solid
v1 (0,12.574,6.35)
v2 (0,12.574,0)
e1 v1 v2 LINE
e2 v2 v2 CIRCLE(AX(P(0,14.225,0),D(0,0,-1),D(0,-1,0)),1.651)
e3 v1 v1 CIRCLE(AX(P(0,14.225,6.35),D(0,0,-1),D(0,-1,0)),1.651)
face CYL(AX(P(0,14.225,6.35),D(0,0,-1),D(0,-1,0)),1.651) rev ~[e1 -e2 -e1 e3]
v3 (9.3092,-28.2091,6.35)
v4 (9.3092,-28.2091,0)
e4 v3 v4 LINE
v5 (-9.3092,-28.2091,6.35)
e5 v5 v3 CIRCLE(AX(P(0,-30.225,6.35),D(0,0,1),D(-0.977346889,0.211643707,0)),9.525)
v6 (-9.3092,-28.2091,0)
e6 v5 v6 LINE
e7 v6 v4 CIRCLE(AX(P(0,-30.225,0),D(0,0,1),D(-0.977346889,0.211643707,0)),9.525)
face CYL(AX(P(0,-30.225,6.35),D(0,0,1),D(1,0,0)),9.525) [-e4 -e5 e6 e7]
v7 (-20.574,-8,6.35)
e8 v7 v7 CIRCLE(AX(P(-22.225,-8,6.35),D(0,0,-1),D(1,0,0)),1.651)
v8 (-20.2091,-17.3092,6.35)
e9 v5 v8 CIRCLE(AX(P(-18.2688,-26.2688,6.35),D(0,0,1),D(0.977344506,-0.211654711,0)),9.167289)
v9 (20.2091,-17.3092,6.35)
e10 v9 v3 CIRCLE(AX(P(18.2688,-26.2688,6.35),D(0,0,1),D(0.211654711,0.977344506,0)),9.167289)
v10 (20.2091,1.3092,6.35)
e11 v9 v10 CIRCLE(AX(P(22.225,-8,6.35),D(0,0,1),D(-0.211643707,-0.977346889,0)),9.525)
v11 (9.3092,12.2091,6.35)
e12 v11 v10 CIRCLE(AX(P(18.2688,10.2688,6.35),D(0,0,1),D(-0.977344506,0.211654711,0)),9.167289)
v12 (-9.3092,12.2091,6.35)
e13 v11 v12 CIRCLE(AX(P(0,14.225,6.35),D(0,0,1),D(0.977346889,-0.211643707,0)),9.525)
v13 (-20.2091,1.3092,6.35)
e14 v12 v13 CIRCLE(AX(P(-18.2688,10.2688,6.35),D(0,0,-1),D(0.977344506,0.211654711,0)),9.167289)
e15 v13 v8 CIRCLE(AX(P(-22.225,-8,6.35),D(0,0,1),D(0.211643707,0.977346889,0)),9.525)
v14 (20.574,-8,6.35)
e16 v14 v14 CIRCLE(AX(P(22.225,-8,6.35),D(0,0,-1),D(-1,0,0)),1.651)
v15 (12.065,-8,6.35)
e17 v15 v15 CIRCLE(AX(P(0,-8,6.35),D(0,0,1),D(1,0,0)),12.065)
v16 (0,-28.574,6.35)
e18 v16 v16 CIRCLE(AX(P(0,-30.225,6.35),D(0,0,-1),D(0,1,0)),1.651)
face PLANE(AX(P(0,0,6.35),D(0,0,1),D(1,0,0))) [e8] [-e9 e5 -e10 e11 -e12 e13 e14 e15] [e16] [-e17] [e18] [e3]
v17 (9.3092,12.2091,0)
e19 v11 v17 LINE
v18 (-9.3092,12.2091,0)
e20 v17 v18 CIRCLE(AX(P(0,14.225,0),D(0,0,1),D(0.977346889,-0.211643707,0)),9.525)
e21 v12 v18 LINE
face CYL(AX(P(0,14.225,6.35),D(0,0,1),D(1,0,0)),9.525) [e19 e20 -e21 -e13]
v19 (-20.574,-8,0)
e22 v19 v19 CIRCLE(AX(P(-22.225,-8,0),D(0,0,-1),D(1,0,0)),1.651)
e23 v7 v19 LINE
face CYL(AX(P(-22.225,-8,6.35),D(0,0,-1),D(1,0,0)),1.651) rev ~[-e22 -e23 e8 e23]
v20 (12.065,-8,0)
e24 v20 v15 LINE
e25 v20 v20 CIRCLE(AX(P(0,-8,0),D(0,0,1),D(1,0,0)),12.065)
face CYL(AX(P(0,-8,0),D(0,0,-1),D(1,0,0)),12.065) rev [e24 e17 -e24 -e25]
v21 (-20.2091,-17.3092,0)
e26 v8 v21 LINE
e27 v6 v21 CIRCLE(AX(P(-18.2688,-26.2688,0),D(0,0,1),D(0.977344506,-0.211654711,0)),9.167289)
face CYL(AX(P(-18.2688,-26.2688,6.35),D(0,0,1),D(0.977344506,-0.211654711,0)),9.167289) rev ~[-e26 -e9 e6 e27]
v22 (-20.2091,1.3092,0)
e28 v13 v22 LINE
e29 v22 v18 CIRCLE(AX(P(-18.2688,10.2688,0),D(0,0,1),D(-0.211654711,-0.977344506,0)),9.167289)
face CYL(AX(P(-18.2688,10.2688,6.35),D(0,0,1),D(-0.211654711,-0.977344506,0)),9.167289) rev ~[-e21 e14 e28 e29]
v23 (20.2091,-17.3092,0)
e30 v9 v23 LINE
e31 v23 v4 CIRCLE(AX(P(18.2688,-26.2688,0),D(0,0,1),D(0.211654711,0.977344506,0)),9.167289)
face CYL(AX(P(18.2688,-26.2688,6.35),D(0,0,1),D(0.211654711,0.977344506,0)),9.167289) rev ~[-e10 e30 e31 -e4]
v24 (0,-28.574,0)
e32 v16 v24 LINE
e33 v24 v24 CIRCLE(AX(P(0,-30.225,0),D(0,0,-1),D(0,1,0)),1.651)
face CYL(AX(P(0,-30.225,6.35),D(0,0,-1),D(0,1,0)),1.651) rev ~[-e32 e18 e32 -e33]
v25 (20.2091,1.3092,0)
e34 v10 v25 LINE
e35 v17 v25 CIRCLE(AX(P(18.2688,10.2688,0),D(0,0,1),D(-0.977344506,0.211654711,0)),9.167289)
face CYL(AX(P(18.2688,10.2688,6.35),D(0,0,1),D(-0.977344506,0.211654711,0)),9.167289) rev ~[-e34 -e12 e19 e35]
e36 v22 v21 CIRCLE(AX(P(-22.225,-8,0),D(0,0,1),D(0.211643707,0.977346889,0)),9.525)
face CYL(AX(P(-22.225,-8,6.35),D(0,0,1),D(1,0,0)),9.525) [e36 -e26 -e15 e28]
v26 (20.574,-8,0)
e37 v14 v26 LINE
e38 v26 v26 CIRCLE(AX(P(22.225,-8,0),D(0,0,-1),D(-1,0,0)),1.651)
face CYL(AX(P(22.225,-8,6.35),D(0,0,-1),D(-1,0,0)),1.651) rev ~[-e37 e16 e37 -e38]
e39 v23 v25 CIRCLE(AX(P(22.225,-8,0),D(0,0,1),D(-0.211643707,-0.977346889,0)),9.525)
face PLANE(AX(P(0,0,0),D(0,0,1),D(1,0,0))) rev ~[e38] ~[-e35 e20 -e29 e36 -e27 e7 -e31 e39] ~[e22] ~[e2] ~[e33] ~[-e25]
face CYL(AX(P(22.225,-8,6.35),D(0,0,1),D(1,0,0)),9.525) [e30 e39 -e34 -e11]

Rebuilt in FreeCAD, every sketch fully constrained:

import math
import FreeCAD as App
import Part
import Sketcher
Q = App.Units.Quantity

doc = App.newDocument("Part")
body = doc.addObject("PartDesign::Body", "Body")

sketch1 = body.newObject("Sketcher::SketchObject", "Sketch")
sketch1.AttachmentSupport = (doc.getObject("XY_Plane"), [""])
sketch1.MapMode = "FlatFace"
sketch1.addGeometry([
    Part.Circle(App.Vector(0, -8, 0), App.Vector(0, 0, 1), 31.8),
    Part.Circle(App.Vector(22.2, -8, 0), App.Vector(0, 0, 1), 1.3),
    Part.Circle(App.Vector(0, -8, 0), App.Vector(0, 0, 1), 12.1),
    Part.Circle(App.Vector(0, -30.2, 0), App.Vector(0, 0, 1), 1.3),
    Part.Circle(App.Vector(-22.2, -8, 0), App.Vector(0, 0, 1), 1.3),
    Part.Circle(App.Vector(0, 14.2, 0), App.Vector(0, 0, 1), 1.3),
], False)
sketch1.addConstraint([
    Sketcher.Constraint("Coincident", 2, 3, 0, 3),
    Sketcher.Constraint("Equal", 1, 3),
    Sketcher.Constraint("Equal", 3, 4),
    Sketcher.Constraint("Equal", 4, 5),
    Sketcher.Constraint("Symmetric", 1, 3, 4, 3, -2),
    Sketcher.Constraint("PointOnObject", 0, 3, -2),
    Sketcher.Constraint("PointOnObject", 3, 3, -2),
    Sketcher.Constraint("PointOnObject", 5, 3, -2),
    Sketcher.Constraint("Horizontal", 0, 3, 1, 3),
    Sketcher.Constraint("Diameter", 0, Q("2.5 in")),
    Sketcher.Constraint("Diameter", 1, Q("0.1 in")),
    Sketcher.Constraint("Diameter", 2, Q("0.95 in")),
    Sketcher.Constraint("DistanceX", 4, 3, 1, 3, Q("1.75 in")),
    Sketcher.Constraint("DistanceY", 3, 3, 5, 3, Q("1.75 in")),
    Sketcher.Constraint("DistanceY", 3, 3, 0, 3, Q("0.875 in")),
    Sketcher.Constraint("DistanceY", 0, 3, -1, 1, 8.0),
])
pad1 = body.newObject("PartDesign::Pad", "Pad")
pad1.Profile = sketch1
pad1.Length = Q("0.25 in")

sketch2 = body.newObject("Sketcher::SketchObject", "Sketch001")
sketch2.AttachmentSupport = (doc.getObject("XY_Plane"), [""])
sketch2.MapMode = "FlatFace"
sketch2.AttachmentOffset = App.Placement(App.Vector(0, 0, 0.25 * 25.4), App.Rotation())
sketch2.addGeometry(Part.Circle(App.Vector(0, 14.2, 0), App.Vector(0, 0, 1), 1.7), False)
sketch2.addConstraint([
    Sketcher.Constraint("PointOnObject", 0, 3, -2),
    Sketcher.Constraint("Diameter", 0, Q("0.13 in")),
    Sketcher.Constraint("DistanceY", -1, 1, 0, 3, 14.225),
])
doc.recompute()
hole = body.newObject("PartDesign::Hole", "Hole")
hole.Profile = sketch2
hole.ThreadType = "None"
hole.Diameter = Q("0.13 in")
hole.DepthType = "Dimension"
hole.Depth = Q("0.25 in")
hole.DrillPoint = "Flat"
doc.recompute()

datumline = body.newObject("PartDesign::Line", "DatumLine")
datumline.Placement = App.Placement(App.Vector(0, -8, 0), App.Rotation(App.Vector(0, 0, 1), App.Vector(0, 0, 1)))
polarpattern = body.newObject("PartDesign::PolarPattern", "PolarPattern")
polarpattern.Originals = [hole]
polarpattern.Axis = (datumline, [""])
polarpattern.Angle = 360
polarpattern.Occurrences = 4
body.Tip = polarpattern

sketch3 = body.newObject("Sketcher::SketchObject", "Sketch002")
sketch3.AttachmentSupport = (doc.getObject("XY_Plane"), [""])
sketch3.MapMode = "FlatFace"
sketch3.AttachmentOffset = App.Placement(App.Vector(0, 0, 0.25 * 25.4), App.Rotation())
sketch3.addGeometry([
    Part.ArcOfCircle(Part.Circle(App.Vector(-22, -8, 0), App.Vector(0, 0, 1), 10), math.radians(78), math.radians(180)),
    Part.ArcOfCircle(Part.Circle(App.Vector(-18, 10, 0), App.Vector(0, 0, 1), 9), math.radians(-102), math.radians(12)),
    Part.ArcOfCircle(Part.Circle(App.Vector(0, 14, 0), App.Vector(0, 0, 1), 10), math.radians(90), math.radians(192)),
    Part.ArcOfCircle(Part.Circle(App.Vector(0, -8, 0), App.Vector(0, 0, 1), 32), math.radians(90), math.radians(180)),
    Part.ArcOfCircle(Part.Circle(App.Vector(-18, -26, 0), App.Vector(0, 0, 1), 9), math.radians(-12), math.radians(102)),
    Part.ArcOfCircle(Part.Circle(App.Vector(-22, -8, 0), App.Vector(0, 0, 1), 10), math.radians(-180), math.radians(-78)),
    Part.ArcOfCircle(Part.Circle(App.Vector(0, -8, 0), App.Vector(0, 0, 1), 32), math.radians(-180), math.radians(-90)),
    Part.ArcOfCircle(Part.Circle(App.Vector(0, -30, 0), App.Vector(0, 0, 1), 10), math.radians(168), math.radians(270)),
    Part.ArcOfCircle(Part.Circle(App.Vector(0, -8, 0), App.Vector(0, 0, 1), 32), math.radians(0), math.radians(90)),
    Part.ArcOfCircle(Part.Circle(App.Vector(0, 14, 0), App.Vector(0, 0, 1), 10), math.radians(-12), math.radians(90)),
    Part.ArcOfCircle(Part.Circle(App.Vector(18, 10, 0), App.Vector(0, 0, 1), 9), math.radians(168), math.radians(282)),
    Part.ArcOfCircle(Part.Circle(App.Vector(22, -8, 0), App.Vector(0, 0, 1), 10), math.radians(0), math.radians(102)),
    Part.ArcOfCircle(Part.Circle(App.Vector(0, -30, 0), App.Vector(0, 0, 1), 10), math.radians(-90), math.radians(12)),
    Part.ArcOfCircle(Part.Circle(App.Vector(0, -8, 0), App.Vector(0, 0, 1), 32), math.radians(-90), math.radians(0)),
    Part.ArcOfCircle(Part.Circle(App.Vector(22, -8, 0), App.Vector(0, 0, 1), 10), math.radians(-102), math.radians(0)),
    Part.ArcOfCircle(Part.Circle(App.Vector(18, -26, 0), App.Vector(0, 0, 1), 9), math.radians(78), math.radians(192)),
], False)
sketch3.addConstraint([
    Sketcher.Constraint("Tangent", 0, 1, 1, 1),
    Sketcher.Constraint("Tangent", 1, 2, 2, 2),
    Sketcher.Constraint("Tangent", 2, 1, 3, 1),
    Sketcher.Constraint("Tangent", 3, 2, 0, 2),
    Sketcher.Constraint("Tangent", 4, 2, 5, 2),
    Sketcher.Constraint("Tangent", 5, 1, 6, 1),
    Sketcher.Constraint("Tangent", 6, 2, 7, 2),
    Sketcher.Constraint("Tangent", 7, 1, 4, 1),
    Sketcher.Constraint("Tangent", 8, 2, 9, 2),
    Sketcher.Constraint("Tangent", 9, 1, 10, 1),
    Sketcher.Constraint("Tangent", 10, 2, 11, 2),
    Sketcher.Constraint("Tangent", 11, 1, 8, 1),
    Sketcher.Constraint("Tangent", 12, 1, 13, 1),
    Sketcher.Constraint("Tangent", 13, 2, 14, 2),
    Sketcher.Constraint("Tangent", 14, 1, 15, 1),
    Sketcher.Constraint("Tangent", 15, 2, 12, 2),
    Sketcher.Constraint("Coincident", 5, 3, 0, 3),
    Sketcher.Constraint("Coincident", 6, 3, 3, 3),
    Sketcher.Constraint("Coincident", 8, 3, 3, 3),
    Sketcher.Constraint("Coincident", 9, 3, 2, 3),
    Sketcher.Constraint("Coincident", 12, 3, 7, 3),
    Sketcher.Constraint("Coincident", 13, 3, 3, 3),
    Sketcher.Constraint("Coincident", 14, 3, 11, 3),
    Sketcher.Constraint("Equal", 0, 2),
    Sketcher.Constraint("Equal", 1, 4),
    Sketcher.Constraint("Equal", 2, 5),
    Sketcher.Constraint("Equal", 5, 7),
    Sketcher.Constraint("Equal", 6, 8),
    Sketcher.Constraint("Equal", 4, 10),
    Sketcher.Constraint("Equal", 9, 11),
    Sketcher.Constraint("Equal", 11, 12),
    Sketcher.Constraint("Equal", 10, 15),
    Sketcher.Constraint("Symmetric", 1, 3, 10, 3, -2),
    Sketcher.Constraint("Symmetric", 4, 3, 15, 3, -2),
    Sketcher.Constraint("Horizontal", 0, 3, 3, 3),
    Sketcher.Constraint("Radius", 3, Q("1.25 in")),
    Sketcher.Constraint("Radius", 0, Q("0.375 in")),
    Sketcher.Constraint("Radius", 1, 9.1673),
    Sketcher.Constraint("DistanceY", 4, 3, -1, 1, Q("1.0342 in")),
])
pocket1 = body.newObject("PartDesign::Pocket", "Pocket")
pocket1.Profile = sketch3
pocket1.Length = Q("1 in")

doc.recompute()
